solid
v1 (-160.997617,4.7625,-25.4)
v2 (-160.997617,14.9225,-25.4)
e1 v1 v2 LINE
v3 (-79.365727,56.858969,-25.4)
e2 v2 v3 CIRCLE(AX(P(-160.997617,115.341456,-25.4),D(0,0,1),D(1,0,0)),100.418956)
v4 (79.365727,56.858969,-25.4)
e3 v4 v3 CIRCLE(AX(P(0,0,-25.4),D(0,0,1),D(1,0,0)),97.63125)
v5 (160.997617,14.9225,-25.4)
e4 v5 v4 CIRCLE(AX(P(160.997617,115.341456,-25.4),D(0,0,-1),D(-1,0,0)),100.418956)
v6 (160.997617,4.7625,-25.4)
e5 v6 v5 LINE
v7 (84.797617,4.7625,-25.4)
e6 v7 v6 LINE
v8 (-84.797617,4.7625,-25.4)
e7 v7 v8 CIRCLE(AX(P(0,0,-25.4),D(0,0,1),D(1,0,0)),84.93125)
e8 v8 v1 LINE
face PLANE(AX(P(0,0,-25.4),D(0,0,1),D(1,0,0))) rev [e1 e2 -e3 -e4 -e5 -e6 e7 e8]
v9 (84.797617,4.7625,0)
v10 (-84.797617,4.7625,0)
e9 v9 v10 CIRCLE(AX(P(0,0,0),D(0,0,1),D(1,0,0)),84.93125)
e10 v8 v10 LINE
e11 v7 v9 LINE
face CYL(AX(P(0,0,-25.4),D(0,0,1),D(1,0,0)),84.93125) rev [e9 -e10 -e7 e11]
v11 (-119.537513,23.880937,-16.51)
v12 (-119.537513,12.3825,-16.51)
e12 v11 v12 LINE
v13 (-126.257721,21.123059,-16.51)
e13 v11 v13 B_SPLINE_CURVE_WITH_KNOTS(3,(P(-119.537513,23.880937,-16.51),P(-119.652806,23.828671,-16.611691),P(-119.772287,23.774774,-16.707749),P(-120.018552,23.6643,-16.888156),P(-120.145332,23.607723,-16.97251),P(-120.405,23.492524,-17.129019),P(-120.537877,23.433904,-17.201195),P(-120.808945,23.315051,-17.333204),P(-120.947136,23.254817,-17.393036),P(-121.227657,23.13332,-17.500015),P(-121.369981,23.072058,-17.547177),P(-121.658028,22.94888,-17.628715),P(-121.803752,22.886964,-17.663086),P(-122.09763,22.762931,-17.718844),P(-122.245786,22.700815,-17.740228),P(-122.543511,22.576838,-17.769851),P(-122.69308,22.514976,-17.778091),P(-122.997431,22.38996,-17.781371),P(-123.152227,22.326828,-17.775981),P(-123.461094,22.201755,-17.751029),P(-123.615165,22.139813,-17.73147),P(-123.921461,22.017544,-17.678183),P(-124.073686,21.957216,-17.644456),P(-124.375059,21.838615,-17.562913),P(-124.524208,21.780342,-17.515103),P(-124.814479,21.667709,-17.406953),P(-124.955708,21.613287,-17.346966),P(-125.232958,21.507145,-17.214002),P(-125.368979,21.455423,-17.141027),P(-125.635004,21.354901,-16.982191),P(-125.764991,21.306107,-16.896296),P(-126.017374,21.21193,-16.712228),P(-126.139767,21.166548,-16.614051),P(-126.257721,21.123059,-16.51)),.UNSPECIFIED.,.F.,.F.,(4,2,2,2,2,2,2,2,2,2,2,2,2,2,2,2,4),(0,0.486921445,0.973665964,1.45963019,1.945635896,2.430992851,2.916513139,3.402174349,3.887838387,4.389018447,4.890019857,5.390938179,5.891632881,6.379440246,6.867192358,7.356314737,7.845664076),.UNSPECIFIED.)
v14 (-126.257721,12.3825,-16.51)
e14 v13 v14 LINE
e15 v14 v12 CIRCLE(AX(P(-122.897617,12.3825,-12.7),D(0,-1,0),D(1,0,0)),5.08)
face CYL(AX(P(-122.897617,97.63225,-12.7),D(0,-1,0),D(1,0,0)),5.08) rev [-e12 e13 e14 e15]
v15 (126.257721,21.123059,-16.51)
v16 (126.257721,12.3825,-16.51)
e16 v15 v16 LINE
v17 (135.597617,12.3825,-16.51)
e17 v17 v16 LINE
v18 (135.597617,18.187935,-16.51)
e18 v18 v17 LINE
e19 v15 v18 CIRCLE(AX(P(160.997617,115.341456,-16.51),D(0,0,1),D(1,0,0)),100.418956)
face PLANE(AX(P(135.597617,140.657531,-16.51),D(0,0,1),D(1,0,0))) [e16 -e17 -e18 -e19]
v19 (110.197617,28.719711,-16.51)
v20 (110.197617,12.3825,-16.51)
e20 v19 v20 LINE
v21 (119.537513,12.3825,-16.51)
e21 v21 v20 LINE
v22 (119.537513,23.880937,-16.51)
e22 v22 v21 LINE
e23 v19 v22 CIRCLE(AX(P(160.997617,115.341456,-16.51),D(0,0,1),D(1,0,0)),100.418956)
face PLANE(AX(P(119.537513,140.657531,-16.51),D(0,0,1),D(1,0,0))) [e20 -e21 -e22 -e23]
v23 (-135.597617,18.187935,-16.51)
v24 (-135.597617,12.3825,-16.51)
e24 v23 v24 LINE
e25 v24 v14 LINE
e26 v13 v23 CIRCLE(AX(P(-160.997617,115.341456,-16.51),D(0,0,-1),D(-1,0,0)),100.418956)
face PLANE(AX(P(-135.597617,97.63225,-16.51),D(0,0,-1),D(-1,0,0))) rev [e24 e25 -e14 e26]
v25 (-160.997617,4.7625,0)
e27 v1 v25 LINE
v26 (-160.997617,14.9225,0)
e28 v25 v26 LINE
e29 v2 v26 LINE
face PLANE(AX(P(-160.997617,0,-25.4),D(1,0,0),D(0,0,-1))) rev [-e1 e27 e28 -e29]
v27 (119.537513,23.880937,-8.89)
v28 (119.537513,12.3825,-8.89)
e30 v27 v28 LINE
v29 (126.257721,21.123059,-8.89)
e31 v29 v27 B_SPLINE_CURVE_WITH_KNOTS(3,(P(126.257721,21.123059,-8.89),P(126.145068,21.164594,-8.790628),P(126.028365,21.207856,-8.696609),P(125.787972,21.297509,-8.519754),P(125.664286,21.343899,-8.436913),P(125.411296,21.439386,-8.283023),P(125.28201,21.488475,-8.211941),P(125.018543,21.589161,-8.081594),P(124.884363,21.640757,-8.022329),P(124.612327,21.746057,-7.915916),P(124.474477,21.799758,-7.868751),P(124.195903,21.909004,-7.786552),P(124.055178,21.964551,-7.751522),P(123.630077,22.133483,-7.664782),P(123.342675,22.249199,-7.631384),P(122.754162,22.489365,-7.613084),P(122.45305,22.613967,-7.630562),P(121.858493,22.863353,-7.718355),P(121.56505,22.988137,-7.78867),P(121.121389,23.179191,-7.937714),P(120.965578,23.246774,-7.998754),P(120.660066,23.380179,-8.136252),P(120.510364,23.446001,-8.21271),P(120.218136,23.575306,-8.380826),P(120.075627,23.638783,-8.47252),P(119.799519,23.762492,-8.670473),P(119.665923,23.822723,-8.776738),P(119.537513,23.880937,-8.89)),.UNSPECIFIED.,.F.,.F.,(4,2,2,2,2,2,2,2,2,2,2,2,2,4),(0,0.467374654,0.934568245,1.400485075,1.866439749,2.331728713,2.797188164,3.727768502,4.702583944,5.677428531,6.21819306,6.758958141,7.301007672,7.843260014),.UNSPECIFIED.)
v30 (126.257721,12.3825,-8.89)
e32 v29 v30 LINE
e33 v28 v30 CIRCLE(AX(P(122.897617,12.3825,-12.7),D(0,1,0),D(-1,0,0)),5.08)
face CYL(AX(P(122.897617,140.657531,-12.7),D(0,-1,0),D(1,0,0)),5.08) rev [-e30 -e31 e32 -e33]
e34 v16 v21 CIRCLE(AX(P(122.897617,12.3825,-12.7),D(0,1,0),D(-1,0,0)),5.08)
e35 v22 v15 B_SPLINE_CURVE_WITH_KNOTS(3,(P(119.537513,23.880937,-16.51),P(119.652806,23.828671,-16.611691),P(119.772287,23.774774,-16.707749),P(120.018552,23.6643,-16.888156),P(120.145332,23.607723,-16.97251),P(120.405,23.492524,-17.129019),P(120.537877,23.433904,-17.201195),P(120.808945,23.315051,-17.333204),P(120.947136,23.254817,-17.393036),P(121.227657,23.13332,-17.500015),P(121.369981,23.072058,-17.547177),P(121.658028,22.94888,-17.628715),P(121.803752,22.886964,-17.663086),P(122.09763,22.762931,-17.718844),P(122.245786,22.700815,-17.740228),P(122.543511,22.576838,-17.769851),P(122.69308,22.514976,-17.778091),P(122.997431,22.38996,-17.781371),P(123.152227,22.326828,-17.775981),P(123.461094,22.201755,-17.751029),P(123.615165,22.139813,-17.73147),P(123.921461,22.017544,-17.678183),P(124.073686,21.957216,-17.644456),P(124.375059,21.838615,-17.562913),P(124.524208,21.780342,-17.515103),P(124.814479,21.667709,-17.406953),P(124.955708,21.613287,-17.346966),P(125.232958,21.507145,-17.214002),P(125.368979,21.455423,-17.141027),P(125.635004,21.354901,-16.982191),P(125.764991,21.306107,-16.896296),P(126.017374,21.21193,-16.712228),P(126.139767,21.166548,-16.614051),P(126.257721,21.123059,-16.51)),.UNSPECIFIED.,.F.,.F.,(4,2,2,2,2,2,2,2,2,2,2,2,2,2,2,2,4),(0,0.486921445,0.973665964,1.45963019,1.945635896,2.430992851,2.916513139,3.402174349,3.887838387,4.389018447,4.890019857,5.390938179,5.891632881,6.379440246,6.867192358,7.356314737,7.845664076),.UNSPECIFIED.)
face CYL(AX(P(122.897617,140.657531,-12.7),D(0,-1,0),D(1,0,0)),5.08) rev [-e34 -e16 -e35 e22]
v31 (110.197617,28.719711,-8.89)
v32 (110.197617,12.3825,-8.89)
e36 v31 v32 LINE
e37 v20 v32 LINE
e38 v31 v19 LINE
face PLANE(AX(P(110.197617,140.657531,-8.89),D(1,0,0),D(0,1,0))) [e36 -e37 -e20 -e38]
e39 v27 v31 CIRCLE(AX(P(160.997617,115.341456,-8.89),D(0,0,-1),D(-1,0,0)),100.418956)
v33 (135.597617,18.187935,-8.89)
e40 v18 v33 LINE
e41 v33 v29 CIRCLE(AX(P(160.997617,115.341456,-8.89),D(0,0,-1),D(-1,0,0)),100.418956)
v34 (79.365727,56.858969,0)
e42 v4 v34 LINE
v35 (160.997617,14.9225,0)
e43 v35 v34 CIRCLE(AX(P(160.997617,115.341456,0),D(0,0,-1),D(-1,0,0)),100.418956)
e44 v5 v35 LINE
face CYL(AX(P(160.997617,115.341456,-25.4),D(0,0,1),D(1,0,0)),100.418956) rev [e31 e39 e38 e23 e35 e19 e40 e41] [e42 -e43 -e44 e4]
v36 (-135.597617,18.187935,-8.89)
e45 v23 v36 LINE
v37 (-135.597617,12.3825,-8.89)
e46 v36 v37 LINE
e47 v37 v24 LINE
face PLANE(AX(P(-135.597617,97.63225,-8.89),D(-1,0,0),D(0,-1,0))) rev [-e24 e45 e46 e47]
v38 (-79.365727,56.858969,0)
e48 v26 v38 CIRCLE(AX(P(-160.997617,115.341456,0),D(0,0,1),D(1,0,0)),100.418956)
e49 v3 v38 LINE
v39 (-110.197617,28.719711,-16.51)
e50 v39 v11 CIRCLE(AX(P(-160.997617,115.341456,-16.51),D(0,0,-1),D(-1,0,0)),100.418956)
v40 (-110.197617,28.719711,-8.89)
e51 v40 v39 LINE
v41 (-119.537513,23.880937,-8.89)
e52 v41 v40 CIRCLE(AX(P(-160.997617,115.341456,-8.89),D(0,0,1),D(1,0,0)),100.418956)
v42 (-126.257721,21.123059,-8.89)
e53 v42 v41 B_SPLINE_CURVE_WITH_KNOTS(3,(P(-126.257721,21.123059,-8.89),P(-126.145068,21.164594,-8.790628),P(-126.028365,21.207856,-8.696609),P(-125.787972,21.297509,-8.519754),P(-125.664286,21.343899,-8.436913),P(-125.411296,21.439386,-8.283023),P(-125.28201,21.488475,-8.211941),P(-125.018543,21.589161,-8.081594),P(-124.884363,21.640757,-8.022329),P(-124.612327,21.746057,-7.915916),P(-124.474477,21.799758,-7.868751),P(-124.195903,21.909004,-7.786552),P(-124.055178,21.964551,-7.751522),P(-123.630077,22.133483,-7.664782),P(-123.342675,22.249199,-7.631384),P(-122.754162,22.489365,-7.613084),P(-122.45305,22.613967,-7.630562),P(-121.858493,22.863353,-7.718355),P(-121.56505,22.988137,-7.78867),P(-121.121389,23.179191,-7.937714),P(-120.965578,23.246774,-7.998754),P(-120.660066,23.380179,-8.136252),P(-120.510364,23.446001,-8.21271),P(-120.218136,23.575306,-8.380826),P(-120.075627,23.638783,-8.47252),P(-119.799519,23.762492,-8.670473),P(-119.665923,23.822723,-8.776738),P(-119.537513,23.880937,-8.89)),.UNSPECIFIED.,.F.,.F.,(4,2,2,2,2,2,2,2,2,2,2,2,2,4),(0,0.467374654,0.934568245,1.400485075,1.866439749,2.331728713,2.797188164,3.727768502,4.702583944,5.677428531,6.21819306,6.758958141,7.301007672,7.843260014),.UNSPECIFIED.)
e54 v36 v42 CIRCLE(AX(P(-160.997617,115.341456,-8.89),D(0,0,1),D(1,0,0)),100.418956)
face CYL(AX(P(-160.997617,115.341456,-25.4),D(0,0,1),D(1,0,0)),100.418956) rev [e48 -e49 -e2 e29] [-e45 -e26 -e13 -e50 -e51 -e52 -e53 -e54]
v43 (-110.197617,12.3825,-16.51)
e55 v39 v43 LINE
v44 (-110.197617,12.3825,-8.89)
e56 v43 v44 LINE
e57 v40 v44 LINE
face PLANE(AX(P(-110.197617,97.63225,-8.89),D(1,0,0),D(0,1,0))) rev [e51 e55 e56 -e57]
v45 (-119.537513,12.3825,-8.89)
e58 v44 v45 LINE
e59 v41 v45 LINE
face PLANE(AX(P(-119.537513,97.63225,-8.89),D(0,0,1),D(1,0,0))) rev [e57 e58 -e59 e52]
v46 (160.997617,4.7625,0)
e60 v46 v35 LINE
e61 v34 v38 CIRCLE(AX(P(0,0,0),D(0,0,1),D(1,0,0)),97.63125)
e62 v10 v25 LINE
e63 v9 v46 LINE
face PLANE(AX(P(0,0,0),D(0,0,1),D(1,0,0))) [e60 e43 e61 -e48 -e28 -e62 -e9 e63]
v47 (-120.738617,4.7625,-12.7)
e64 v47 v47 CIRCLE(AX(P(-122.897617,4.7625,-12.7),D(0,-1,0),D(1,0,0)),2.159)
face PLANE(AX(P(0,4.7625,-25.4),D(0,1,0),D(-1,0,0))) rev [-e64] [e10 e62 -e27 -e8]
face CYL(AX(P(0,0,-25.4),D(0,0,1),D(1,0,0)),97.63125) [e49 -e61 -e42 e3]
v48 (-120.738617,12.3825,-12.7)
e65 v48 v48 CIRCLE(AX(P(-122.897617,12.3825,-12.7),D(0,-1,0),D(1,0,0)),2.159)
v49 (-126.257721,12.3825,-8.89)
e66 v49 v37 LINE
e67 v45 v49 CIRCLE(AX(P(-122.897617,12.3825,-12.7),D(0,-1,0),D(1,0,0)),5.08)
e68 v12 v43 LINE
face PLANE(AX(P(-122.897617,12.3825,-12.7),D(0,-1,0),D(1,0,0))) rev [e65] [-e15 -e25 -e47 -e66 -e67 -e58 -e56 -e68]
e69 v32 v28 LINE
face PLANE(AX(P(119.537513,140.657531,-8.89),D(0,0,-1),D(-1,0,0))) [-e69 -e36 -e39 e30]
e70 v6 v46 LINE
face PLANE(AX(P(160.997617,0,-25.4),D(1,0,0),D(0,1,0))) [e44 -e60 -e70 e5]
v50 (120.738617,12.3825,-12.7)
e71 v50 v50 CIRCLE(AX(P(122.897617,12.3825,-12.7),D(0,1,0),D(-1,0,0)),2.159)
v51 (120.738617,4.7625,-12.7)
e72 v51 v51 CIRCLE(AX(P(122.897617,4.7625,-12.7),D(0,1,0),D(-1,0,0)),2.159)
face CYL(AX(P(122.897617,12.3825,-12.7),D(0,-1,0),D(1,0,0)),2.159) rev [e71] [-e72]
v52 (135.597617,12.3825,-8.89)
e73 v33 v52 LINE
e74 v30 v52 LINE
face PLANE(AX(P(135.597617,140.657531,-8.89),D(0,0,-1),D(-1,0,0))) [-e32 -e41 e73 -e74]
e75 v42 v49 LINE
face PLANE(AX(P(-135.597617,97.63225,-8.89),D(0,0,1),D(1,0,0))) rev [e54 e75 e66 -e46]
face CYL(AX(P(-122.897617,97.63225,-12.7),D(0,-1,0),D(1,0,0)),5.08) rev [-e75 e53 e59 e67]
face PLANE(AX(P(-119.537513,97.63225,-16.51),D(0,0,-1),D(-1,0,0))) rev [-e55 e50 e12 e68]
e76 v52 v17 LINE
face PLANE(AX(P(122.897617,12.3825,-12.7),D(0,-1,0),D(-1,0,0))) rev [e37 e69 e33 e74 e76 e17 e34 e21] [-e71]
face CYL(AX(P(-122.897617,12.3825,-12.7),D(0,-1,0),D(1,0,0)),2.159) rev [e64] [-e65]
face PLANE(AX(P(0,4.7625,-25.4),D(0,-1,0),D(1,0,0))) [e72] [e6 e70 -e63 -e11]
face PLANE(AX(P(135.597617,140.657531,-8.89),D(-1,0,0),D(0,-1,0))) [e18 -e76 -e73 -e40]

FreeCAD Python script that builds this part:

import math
import FreeCAD as App
import Part
import Sketcher
Q = App.Units.Quantity

doc = App.newDocument("Part")
body = doc.addObject("PartDesign::Body", "Body")

sketch1 = body.newObject("Sketcher::SketchObject", "Sketch")
sketch1.AttachmentSupport = (doc.getObject("XY_Plane"), [""])
sketch1.MapMode = "FlatFace"
sketch1.addGeometry(Part.ArcOfCircle(Part.Circle(App.Vector(-160.997617, 115.341456, 0), App.Vector(0, 0, 1), 100.418956), math.radians(-90), math.radians(-35.618462)), False)
sketch1.addGeometry(Part.LineSegment(App.Vector(-160.997617, 14.9225, 0), App.Vector(-160.997617, 4.7625, 0)), False)
sketch1.addGeometry(Part.LineSegment(App.Vector(-160.997617, 4.7625, 0), App.Vector(-84.797617, 4.7625, 0)), False)
sketch1.addGeometry(Part.ArcOfCircle(Part.Circle(App.Vector(0, 0, 0), App.Vector(0, 0, 1), 84.93125), math.radians(90), math.radians(176.785466)), False)
sketch1.addGeometry(Part.LineSegment(App.Vector(0, 84.93125, 0), App.Vector(0, 97.63125, 0)), False)
sketch1.addGeometry(Part.ArcOfCircle(Part.Circle(App.Vector(0, 0, 0), App.Vector(0, 0, 1), 97.63125), math.radians(90), math.radians(144.381538)), False)
sketch1.addConstraint(Sketcher.Constraint("Coincident", 0, 1, 1, 1))
sketch1.addConstraint(Sketcher.Constraint("Coincident", 1, 2, 2, 1))
sketch1.addConstraint(Sketcher.Constraint("Coincident", 2, 2, 3, 2))
sketch1.addConstraint(Sketcher.Constraint("Coincident", 3, 1, 4, 1))
sketch1.addConstraint(Sketcher.Constraint("Coincident", 4, 2, 5, 1))
sketch1.addConstraint(Sketcher.Constraint("Tangent", 5, 2, 0, 2))
sketch1.addConstraint(Sketcher.Constraint("Vertical", 1))
sketch1.addConstraint(Sketcher.Constraint("Horizontal", 2))
sketch1.addConstraint(Sketcher.Constraint("Vertical", 4))
sketch1.addConstraint(Sketcher.Constraint("Coincident", 3, 3, -1, 1))
sketch1.addConstraint(Sketcher.Constraint("Coincident", 5, 3, -1, 1))
sketch1.addConstraint(Sketcher.Constraint("PointOnObject", 3, 1, -2))
sketch1.addConstraint(Sketcher.Constraint("DistanceX", 2, 1, 2, 2, Q("3 in")))
sketch1.addConstraint(Sketcher.Constraint("DistanceY", 1, 2, 1, 1, Q("0.4 in")))
sketch1.addConstraint(Sketcher.Constraint("DistanceY", 4, 1, 4, 2, Q("0.5 in")))
sketch1.addConstraint(Sketcher.Constraint("Radius", 3, Q("3.34375 in")))
sketch1.addConstraint(Sketcher.Constraint("DistanceX", 0, 3, 2, 2, Q("3 in")))
sketch1.addConstraint(Sketcher.Constraint("DistanceY", -1, 1, 1, 2, Q("0.1875 in")))
pad1 = body.newObject("PartDesign::Pad", "Pad")
pad1.Profile = sketch1
pad1.Length = Q("1 in")
pad1.Reversed = True

sketch2 = body.newObject("Sketcher::SketchObject", "Sketch001")
sketch2.AttachmentSupport = (doc.getObject("XZ_Plane"), [""])
sketch2.MapMode = "FlatFace"
sketch2.AttachmentOffset = App.Placement(App.Vector(0, 0, -0.1875 * 25.4), App.Rotation())
sketch2.addGeometry(Part.LineSegment(App.Vector(-119.537513, -16.51, 0), App.Vector(-110.197617, -16.51, 0)), False)
sketch2.addGeometry(Part.LineSegment(App.Vector(-110.197617, -16.51, 0), App.Vector(-110.197617, -8.89, 0)), False)
sketch2.addGeometry(Part.LineSegment(App.Vector(-110.197617, -8.89, 0), App.Vector(-119.537513, -8.89, 0)), False)
sketch2.addGeometry(Part.ArcOfCircle(Part.Circle(App.Vector(-122.897617, -12.7, 0), App.Vector(0, 0, 1), 5.08), math.radians(48.590378), math.radians(131.409622)), False)
sketch2.addGeometry(Part.LineSegment(App.Vector(-126.257721, -8.89, 0), App.Vector(-135.597617, -8.89, 0)), False)
sketch2.addGeometry(Part.LineSegment(App.Vector(-135.597617, -8.89, 0), App.Vector(-135.597617, -16.51, 0)), False)
sketch2.addGeometry(Part.LineSegment(App.Vector(-135.597617, -16.51, 0), App.Vector(-126.257721, -16.51, 0)), False)
sketch2.addGeometry(Part.ArcOfCircle(Part.Circle(App.Vector(-122.897617, -12.7, 0), App.Vector(0, 0, 1), 5.08), math.radians(-131.409622), math.radians(-48.590378)), False)
sketch2.addConstraint(Sketcher.Constraint("Coincident", 0, 2, 1, 1))
sketch2.addConstraint(Sketcher.Constraint("Coincident", 1, 2, 2, 1))
sketch2.addConstraint(Sketcher.Constraint("Coincident", 2, 2, 3, 1))
sketch2.addConstraint(Sketcher.Constraint("Coincident", 3, 2, 4, 1))
sketch2.addConstraint(Sketcher.Constraint("Coincident", 4, 2, 5, 1))
sketch2.addConstraint(Sketcher.Constraint("Coincident", 5, 2, 6, 1))
sketch2.addConstraint(Sketcher.Constraint("Coincident", 6, 2, 7, 1))
sketch2.addConstraint(Sketcher.Constraint("Coincident", 7, 2, 0, 1))
sketch2.addConstraint(Sketcher.Constraint("Horizontal", 0))
sketch2.addConstraint(Sketcher.Constraint("Vertical", 1))
sketch2.addConstraint(Sketcher.Constraint("Horizontal", 2))
sketch2.addConstraint(Sketcher.Constraint("Horizontal", 4))
sketch2.addConstraint(Sketcher.Constraint("Vertical", 5))
sketch2.addConstraint(Sketcher.Constraint("Horizontal", 6))
sketch2.addConstraint(Sketcher.Constraint("Coincident", 7, 3, 3, 3))
sketch2.addConstraint(Sketcher.Constraint("Equal", 3, 7))
sketch2.addConstraint(Sketcher.Constraint("Horizontal", 2, 2, 3, 2))
sketch2.addConstraint(Sketcher.Constraint("Horizontal", 0, 2, 5, 2))
sketch2.addConstraint(Sketcher.Constraint("Vertical", 3, 2, 6, 2))
sketch2.addConstraint(Sketcher.Constraint("Equal", 2, 4))
sketch2.addConstraint(Sketcher.Constraint("Radius", 3, Q("0.2 in")))
sketch2.addConstraint(Sketcher.Constraint("DistanceY", 1, 1, 1, 2, Q("0.3 in")))
sketch2.addConstraint(Sketcher.Constraint("DistanceX", 4, 2, 1, 2, Q("1 in")))
sketch2.addConstraint(Sketcher.Constraint("DistanceY", 3, 3, -1, 1, Q("0.5 in")))
sketch2.addConstraint(Sketcher.Constraint("DistanceX", 3, 2, -1, 1, Q("126.257721 mm")))
pocket1 = body.newObject("PartDesign::Pocket", "Pocket")
pocket1.Profile = sketch2
pocket1.Length = 23.957211
doc.recompute()

mirrored = body.newObject("PartDesign::Mirrored", "Mirrored")
mirrored.Originals = [pad1, pocket1]
mirrored.MirrorPlane = (doc.getObject("YZ_Plane"), [""])
body.Tip = mirrored

sketch3 = body.newObject("Sketcher::SketchObject", "Sketch002")
sketch3.AttachmentSupport = (doc.getObject("XZ_Plane"), [""])
sketch3.MapMode = "FlatFace"
sketch3.AttachmentOffset = App.Placement(App.Vector(0, 0, -0.1875 * 25.4), App.Rotation())
sketch3.addGeometry(Part.LineSegment(App.Vector(-110.197617, -8.89, 0), App.Vector(-119.537513, -8.89, 0)), False)
sketch3.addGeometry(Part.ArcOfCircle(Part.Circle(App.Vector(-122.897617, -12.7, 0), App.Vector(0, 0, 1), 5.08), math.radians(48.590378), math.radians(131.409622)), False)
sketch3.addGeometry(Part.LineSegment(App.Vector(-126.257721, -8.89, 0), App.Vector(-135.597617, -8.89, 0)), False)
sketch3.addGeometry(Part.LineSegment(App.Vector(-135.597617, -8.89, 0), App.Vector(-135.597617, -16.51, 0)), False)
sketch3.addGeometry(Part.LineSegment(App.Vector(-135.597617, -16.51, 0), App.Vector(-126.257721, -16.51, 0)), False)
sketch3.addGeometry(Part.ArcOfCircle(Part.Circle(App.Vector(-122.897617, -12.7, 0), App.Vector(0, 0, 1), 5.08), math.radians(-131.409622), math.radians(-48.590378)), False)
sketch3.addGeometry(Part.LineSegment(App.Vector(-119.537513, -16.51, 0), App.Vector(-110.197617, -16.51, 0)), False)
sketch3.addGeometry(Part.LineSegment(App.Vector(-110.197617, -16.51, 0), App.Vector(-110.197617, -8.89, 0)), False)
sketch3.addGeometry(Part.Circle(App.Vector(-122.897617, -12.7, 0), App.Vector(0, 0, 1), 2.159), False)
sketch3.addConstraint(Sketcher.Constraint("Coincident", 0, 2, 1, 1))
sketch3.addConstraint(Sketcher.Constraint("Coincident", 1, 2, 2, 1))
sketch3.addConstraint(Sketcher.Constraint("Coincident", 2, 2, 3, 1))
sketch3.addConstraint(Sketcher.Constraint("Coincident", 3, 2, 4, 1))
sketch3.addConstraint(Sketcher.Constraint("Coincident", 4, 2, 5, 1))
sketch3.addConstraint(Sketcher.Constraint("Coincident", 5, 2, 6, 1))
sketch3.addConstraint(Sketcher.Constraint("Coincident", 6, 2, 7, 1))
sketch3.addConstraint(Sketcher.Constraint("Coincident", 7, 2, 0, 1))
sketch3.addConstraint(Sketcher.Constraint("Horizontal", 0))
sketch3.addConstraint(Sketcher.Constraint("Horizontal", 2))
sketch3.addConstraint(Sketcher.Constraint("Vertical", 3))
sketch3.addConstraint(Sketcher.Constraint("Horizontal", 4))
sketch3.addConstraint(Sketcher.Constraint("Horizontal", 6))
sketch3.addConstraint(Sketcher.Constraint("Vertical", 7))
sketch3.addConstraint(Sketcher.Constraint("Coincident", 5, 3, 1, 3))
sketch3.addConstraint(Sketcher.Constraint("Coincident", 8, 3, 1, 3))
sketch3.addConstraint(Sketcher.Constraint("Equal", 1, 5))
sketch3.addConstraint(Sketcher.Constraint("Horizontal", 0, 2, 1, 2))
sketch3.addConstraint(Sketcher.Constraint("Horizontal", 4, 2, 5, 2))
sketch3.addConstraint(Sketcher.Constraint("Vertical", 1, 2, 4, 2))
sketch3.addConstraint(Sketcher.Constraint("Equal", 0, 2))
sketch3.addConstraint(Sketcher.Constraint("Radius", 1, Q("0.2 in")))
sketch3.addConstraint(Sketcher.Constraint("Diameter", 8, Q("0.17 in")))
sketch3.addConstraint(Sketcher.Constraint("DistanceY", 3, 2, 3, 1, Q("0.3 in")))
sketch3.addConstraint(Sketcher.Constraint("DistanceY", 1, 3, -1, 1, Q("0.5 in")))
sketch3.addConstraint(Sketcher.Constraint("DistanceX", 2, 2, 1, 3, Q("0.5 in")))
sketch3.addConstraint(Sketcher.Constraint("DistanceX", 1, 2, -1, 1, Q("126.257721 mm")))
pad2 = body.newObject("PartDesign::Pad", "Pad001")
pad2.Profile = sketch3
pad2.Length = Q("0.3 in")
pad2.Reversed = True
doc.recompute()

mirrored2 = body.newObject("PartDesign::Mirrored", "Mirrored001")
mirrored2.Originals = [pad2]
mirrored2.MirrorPlane = (doc.getObject("YZ_Plane"), [""])
body.Tip = mirrored2

doc.recompute()
